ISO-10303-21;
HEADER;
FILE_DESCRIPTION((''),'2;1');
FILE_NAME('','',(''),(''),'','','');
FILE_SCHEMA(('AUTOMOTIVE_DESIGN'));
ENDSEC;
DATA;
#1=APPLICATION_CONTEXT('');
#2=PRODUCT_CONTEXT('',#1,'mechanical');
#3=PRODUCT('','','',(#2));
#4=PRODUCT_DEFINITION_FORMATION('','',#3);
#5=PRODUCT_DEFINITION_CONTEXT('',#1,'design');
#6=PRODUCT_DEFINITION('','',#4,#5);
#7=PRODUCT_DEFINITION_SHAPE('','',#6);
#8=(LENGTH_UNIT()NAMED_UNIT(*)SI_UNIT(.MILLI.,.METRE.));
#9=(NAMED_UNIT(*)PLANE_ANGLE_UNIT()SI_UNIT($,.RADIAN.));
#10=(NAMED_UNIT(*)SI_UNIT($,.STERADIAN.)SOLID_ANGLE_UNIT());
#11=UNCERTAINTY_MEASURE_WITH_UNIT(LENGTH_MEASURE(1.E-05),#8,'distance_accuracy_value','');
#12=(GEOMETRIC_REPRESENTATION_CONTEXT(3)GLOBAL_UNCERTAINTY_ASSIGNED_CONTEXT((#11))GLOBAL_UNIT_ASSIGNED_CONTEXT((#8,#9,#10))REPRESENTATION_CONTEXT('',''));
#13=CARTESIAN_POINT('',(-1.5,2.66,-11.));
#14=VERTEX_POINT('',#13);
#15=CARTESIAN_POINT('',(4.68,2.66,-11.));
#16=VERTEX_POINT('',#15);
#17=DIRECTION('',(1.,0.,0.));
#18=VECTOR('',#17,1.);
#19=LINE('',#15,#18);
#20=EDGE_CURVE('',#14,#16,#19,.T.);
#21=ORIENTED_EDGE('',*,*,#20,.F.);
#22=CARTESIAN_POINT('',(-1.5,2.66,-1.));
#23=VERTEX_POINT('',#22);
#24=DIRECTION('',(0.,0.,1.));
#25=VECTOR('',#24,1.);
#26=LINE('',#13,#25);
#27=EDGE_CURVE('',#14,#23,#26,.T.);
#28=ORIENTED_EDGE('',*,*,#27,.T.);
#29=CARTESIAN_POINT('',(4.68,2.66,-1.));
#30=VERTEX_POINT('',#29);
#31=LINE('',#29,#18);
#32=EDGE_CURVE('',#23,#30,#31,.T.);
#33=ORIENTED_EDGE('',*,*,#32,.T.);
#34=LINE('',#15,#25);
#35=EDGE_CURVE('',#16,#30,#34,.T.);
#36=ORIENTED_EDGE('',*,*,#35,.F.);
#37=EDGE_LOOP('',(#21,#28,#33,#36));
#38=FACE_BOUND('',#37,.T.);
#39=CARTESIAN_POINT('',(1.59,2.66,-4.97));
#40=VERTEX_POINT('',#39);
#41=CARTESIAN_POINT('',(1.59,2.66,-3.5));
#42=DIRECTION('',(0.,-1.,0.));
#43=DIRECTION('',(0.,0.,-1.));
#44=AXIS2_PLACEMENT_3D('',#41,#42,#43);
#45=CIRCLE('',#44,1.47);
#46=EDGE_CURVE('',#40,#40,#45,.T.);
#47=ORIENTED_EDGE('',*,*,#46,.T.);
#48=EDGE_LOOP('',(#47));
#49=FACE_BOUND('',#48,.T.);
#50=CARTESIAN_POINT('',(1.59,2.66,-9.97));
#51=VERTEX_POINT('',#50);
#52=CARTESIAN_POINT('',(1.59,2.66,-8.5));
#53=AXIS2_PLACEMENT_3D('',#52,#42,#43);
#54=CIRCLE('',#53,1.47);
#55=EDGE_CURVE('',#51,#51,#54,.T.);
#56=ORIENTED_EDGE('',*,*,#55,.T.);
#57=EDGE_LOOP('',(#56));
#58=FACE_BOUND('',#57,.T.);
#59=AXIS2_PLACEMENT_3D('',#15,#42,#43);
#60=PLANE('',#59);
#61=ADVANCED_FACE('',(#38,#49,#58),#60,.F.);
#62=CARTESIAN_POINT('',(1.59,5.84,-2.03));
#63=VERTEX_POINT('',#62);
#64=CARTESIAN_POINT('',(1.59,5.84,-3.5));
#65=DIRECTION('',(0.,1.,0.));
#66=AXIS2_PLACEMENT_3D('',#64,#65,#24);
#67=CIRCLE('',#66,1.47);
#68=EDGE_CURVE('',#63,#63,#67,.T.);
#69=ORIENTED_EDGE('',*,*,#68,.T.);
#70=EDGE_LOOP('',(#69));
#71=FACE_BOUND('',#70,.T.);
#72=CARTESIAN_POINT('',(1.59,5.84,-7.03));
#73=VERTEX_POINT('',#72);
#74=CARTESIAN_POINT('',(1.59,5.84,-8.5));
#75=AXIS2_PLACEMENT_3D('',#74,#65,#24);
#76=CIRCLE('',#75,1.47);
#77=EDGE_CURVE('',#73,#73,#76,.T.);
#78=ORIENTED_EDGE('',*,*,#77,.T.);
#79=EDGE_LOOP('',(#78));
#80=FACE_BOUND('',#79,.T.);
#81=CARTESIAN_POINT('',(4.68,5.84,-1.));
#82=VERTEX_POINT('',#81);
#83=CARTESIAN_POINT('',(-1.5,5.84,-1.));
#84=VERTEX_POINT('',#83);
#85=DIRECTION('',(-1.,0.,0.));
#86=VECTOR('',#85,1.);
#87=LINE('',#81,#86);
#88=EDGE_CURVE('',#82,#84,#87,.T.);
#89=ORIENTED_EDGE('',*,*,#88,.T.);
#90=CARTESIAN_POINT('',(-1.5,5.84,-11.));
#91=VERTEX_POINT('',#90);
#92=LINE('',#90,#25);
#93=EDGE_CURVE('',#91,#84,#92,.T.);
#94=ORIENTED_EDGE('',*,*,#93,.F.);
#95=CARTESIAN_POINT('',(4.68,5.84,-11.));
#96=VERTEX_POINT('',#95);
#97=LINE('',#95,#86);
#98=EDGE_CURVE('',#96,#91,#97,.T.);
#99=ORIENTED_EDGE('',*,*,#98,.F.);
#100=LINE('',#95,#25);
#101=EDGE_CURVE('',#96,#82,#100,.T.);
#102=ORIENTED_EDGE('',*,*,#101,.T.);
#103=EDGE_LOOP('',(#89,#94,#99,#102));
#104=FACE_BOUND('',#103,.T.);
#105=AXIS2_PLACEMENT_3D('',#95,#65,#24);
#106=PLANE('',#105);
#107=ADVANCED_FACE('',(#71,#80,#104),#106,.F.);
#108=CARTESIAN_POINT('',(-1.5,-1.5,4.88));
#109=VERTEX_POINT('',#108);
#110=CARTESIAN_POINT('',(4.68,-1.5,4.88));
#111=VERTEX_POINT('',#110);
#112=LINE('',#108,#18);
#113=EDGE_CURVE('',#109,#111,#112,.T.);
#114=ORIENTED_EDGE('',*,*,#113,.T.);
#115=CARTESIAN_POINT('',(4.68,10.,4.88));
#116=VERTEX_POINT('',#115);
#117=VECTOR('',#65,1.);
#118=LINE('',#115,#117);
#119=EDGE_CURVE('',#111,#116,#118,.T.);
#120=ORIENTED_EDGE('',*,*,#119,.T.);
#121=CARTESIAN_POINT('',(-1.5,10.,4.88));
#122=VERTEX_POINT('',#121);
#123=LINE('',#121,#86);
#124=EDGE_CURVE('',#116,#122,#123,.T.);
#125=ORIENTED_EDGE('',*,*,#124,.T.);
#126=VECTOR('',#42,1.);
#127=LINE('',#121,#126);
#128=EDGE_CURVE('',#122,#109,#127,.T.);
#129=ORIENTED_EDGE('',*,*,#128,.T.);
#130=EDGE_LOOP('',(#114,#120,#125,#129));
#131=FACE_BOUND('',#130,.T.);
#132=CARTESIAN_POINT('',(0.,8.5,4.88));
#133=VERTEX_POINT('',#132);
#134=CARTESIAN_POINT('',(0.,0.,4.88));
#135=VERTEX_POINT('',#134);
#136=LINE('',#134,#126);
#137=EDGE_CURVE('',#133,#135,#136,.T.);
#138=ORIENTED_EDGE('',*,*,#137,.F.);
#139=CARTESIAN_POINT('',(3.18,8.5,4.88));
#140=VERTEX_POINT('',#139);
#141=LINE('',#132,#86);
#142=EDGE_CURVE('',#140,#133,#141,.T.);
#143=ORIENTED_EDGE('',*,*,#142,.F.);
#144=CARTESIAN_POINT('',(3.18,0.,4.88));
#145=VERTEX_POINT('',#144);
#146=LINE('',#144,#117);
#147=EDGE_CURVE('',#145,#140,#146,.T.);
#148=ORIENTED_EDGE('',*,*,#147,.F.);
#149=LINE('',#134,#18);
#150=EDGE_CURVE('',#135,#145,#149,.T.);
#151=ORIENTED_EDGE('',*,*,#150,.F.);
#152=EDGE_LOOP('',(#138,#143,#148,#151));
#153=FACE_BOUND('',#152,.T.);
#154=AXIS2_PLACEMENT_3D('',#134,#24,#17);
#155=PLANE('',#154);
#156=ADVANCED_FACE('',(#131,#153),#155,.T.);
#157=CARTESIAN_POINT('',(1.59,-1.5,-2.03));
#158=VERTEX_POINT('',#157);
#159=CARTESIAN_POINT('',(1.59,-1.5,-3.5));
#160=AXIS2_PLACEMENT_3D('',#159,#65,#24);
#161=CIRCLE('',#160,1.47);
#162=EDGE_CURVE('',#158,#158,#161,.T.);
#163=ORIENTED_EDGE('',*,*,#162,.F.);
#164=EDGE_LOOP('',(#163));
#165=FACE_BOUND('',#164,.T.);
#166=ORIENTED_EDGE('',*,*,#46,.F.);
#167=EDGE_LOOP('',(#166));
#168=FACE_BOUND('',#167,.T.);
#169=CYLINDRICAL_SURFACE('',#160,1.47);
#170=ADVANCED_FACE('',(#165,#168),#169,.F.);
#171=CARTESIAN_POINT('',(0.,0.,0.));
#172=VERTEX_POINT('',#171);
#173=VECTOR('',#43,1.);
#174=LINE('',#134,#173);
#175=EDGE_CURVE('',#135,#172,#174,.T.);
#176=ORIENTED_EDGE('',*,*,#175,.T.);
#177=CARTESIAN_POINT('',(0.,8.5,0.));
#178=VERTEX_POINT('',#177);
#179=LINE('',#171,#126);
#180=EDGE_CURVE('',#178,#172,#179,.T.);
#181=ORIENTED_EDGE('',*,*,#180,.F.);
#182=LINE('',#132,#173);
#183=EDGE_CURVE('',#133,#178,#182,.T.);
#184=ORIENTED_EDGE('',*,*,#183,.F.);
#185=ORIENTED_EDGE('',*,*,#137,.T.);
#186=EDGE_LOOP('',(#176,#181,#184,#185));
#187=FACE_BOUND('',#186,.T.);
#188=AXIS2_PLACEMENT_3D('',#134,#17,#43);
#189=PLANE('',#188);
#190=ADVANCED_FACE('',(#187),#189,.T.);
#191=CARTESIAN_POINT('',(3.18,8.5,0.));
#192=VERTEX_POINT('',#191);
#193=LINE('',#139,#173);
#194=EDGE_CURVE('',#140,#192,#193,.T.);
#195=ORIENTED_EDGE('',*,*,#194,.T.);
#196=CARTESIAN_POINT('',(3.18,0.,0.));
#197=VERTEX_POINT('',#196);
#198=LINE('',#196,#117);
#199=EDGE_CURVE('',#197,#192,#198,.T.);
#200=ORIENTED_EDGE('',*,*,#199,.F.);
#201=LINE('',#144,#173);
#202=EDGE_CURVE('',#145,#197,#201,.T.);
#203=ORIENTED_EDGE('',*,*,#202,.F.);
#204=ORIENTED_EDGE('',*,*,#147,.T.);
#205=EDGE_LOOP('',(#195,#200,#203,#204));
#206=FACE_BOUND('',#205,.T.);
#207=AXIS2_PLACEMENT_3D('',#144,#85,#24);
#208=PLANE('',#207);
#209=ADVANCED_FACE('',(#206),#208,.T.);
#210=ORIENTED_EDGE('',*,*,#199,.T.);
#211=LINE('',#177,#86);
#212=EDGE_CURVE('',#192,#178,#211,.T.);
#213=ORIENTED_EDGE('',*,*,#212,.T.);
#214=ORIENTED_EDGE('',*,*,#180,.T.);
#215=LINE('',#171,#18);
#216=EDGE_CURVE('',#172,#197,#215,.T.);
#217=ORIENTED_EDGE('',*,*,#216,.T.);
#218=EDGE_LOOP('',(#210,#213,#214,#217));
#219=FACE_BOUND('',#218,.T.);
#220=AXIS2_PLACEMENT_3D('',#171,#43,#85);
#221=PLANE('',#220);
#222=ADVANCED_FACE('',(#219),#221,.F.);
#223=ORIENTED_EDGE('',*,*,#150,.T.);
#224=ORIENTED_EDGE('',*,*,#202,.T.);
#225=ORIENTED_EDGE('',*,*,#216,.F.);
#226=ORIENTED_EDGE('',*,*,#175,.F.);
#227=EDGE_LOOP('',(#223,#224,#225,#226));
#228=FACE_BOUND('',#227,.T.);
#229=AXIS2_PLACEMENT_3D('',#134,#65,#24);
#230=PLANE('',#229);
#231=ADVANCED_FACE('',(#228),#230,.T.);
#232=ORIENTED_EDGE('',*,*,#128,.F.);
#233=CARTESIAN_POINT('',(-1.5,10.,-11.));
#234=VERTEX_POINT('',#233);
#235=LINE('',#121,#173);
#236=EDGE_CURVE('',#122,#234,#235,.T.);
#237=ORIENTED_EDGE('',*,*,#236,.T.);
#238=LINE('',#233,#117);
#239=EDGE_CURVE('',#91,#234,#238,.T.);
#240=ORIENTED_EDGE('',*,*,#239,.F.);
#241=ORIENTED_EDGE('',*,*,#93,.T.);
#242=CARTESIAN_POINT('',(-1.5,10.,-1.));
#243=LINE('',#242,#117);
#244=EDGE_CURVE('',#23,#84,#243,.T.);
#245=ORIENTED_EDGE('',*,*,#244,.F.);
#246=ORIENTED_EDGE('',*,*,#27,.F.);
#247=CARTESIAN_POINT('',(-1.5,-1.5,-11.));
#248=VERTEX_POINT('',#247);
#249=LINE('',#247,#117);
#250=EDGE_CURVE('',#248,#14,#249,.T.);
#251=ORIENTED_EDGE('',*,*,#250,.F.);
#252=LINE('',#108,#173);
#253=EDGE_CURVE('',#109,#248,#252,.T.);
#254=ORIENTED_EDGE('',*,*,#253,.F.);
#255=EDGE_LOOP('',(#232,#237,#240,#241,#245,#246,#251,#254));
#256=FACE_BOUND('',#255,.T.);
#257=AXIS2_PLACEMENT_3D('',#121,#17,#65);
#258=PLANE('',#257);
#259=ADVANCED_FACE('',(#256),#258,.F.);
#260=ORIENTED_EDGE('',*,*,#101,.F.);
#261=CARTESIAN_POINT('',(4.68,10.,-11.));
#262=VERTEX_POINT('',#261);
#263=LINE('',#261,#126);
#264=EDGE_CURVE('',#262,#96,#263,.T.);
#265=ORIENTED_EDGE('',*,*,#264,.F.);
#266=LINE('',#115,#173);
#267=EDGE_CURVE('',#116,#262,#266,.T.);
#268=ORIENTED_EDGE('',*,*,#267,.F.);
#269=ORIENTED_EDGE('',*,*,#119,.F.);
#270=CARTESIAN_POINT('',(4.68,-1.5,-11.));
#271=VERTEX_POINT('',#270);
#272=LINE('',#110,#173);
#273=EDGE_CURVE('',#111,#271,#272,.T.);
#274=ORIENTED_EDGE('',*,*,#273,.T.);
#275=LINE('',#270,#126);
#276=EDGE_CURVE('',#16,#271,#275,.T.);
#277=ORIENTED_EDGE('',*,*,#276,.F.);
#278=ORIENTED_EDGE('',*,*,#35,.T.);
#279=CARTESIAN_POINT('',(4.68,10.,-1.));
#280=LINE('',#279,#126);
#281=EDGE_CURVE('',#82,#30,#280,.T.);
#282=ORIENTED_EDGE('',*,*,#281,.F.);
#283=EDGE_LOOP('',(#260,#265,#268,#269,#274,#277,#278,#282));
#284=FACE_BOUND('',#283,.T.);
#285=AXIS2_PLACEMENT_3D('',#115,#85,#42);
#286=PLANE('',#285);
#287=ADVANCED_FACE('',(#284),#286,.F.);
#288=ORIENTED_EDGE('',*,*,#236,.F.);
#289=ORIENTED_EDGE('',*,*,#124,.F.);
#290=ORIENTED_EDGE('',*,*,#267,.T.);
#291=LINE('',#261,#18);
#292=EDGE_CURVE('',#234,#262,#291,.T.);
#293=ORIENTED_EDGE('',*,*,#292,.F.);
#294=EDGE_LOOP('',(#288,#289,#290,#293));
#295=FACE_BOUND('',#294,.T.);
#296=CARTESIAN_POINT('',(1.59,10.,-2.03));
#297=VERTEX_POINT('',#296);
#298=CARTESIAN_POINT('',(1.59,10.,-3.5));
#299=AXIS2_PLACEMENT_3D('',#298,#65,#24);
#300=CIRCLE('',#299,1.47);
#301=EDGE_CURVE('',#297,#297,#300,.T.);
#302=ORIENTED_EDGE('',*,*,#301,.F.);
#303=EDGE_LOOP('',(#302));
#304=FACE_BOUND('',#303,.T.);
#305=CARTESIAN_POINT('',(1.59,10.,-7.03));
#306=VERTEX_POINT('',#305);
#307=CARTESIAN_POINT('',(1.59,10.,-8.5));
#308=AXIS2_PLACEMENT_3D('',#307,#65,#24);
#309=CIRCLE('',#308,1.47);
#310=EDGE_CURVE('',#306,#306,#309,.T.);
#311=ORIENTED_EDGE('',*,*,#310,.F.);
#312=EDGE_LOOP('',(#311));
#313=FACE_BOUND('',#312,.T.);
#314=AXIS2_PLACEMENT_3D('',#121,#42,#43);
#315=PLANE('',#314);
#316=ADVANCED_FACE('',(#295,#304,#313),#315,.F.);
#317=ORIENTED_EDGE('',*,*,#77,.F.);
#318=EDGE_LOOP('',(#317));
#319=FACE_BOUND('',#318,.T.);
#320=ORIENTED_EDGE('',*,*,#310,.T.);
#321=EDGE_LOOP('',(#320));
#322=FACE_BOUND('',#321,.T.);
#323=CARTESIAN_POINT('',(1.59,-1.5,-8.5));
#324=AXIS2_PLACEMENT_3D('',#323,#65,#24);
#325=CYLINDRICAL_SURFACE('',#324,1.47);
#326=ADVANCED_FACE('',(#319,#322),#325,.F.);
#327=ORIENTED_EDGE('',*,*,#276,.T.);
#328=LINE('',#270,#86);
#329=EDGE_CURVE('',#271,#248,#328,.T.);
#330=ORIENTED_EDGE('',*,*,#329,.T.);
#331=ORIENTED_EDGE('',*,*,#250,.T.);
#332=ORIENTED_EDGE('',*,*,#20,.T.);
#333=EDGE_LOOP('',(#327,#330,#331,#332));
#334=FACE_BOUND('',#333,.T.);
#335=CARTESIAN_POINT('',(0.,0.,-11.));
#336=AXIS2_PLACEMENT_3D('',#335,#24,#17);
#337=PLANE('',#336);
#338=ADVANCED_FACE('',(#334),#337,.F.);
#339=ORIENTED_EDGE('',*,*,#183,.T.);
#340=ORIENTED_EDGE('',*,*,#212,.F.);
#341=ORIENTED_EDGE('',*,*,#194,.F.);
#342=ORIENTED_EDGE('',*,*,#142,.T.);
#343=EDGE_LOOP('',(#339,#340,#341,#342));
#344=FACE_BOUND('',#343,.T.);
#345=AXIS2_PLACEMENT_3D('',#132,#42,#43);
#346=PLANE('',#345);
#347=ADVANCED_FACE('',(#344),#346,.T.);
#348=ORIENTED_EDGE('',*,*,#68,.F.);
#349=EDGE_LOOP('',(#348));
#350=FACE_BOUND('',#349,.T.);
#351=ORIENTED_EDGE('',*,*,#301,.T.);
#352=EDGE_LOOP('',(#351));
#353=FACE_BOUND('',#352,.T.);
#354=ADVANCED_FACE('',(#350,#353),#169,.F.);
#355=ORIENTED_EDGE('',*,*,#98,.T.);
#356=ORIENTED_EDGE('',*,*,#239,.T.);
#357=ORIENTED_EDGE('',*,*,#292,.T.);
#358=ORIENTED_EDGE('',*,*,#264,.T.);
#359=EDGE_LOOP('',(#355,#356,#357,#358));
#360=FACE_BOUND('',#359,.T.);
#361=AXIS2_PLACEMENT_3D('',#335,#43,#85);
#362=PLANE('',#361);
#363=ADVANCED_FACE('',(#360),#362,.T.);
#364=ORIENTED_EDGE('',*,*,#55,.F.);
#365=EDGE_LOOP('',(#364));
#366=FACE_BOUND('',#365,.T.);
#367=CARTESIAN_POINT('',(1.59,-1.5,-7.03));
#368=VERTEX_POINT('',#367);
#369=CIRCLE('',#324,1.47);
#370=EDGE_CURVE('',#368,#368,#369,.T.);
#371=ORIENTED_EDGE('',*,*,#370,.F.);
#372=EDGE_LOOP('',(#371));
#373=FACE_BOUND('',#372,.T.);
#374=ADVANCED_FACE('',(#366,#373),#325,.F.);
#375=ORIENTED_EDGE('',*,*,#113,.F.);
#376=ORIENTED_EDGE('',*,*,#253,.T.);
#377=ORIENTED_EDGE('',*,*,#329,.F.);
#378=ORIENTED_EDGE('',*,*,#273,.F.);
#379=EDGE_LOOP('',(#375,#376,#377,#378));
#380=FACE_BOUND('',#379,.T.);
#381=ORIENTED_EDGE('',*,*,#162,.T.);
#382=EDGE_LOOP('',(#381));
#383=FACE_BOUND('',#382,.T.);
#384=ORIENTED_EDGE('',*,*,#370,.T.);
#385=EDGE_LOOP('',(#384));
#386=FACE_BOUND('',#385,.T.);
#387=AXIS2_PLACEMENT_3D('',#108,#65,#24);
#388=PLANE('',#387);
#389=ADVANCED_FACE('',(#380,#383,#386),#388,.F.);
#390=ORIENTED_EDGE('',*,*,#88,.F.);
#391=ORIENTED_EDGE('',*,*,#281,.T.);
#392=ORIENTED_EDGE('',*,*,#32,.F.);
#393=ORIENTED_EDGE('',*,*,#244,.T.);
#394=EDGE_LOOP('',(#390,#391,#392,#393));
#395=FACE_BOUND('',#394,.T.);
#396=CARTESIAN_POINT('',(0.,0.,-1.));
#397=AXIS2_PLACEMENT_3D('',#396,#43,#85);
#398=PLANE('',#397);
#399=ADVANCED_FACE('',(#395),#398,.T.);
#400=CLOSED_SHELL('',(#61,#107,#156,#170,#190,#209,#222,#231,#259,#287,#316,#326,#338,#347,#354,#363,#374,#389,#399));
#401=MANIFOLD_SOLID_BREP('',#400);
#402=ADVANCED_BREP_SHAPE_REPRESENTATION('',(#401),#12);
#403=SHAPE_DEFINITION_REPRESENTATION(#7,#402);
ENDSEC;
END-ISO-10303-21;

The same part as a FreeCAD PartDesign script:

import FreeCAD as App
import Part
import Sketcher

V = App.Vector

doc = App.newDocument("Part")
body = doc.addObject("PartDesign::Body", "Body")

# Sketch on XY plane
sketch1 = doc.addObject("Sketcher::SketchObject", "Sketch")
body.addObject(sketch1)
sketch1.AttachmentSupport = (doc.XY_Plane, [""])
sketch1.MapMode = "FlatFace"
sketch1.addGeometry([
    Part.LineSegment(V(-1.5, 10, 0), V(-1.5, -1.5, 0)),  # 0
    Part.LineSegment(V(-1.5, -1.5, 0), V(4.7, -1.5, 0)),  # 1
    Part.LineSegment(V(4.7, -1.5, 0), V(4.7, 10, 0)),  # 2
    Part.LineSegment(V(4.7, 10, 0), V(-1.5, 10, 0)),  # 3
    Part.LineSegment(V(3.2, 0, 0), V(0, 0, 0)),  # 4
    Part.LineSegment(V(0, 0, 0), V(0, 8.5, 0)),  # 5
    Part.LineSegment(V(0, 8.5, 0), V(3.2, 8.5, 0)),  # 6
    Part.LineSegment(V(3.2, 8.5, 0), V(3.2, 0, 0)),  # 7
], False)
sketch1.addConstraint([
    Sketcher.Constraint("Coincident", 0, 2, 1, 1),
    Sketcher.Constraint("Coincident", 1, 2, 2, 1),
    Sketcher.Constraint("Coincident", 2, 2, 3, 1),
    Sketcher.Constraint("Coincident", 3, 2, 0, 1),
    Sketcher.Constraint("Coincident", 4, 2, 5, 1),
    Sketcher.Constraint("Coincident", 5, 2, 6, 1),
    Sketcher.Constraint("Coincident", 6, 2, 7, 1),
    Sketcher.Constraint("Coincident", 7, 2, 4, 1),
    Sketcher.Constraint("Vertical", 0),
    Sketcher.Constraint("Horizontal", 1),
    Sketcher.Constraint("Vertical", 2),
    Sketcher.Constraint("Horizontal", 3),
    Sketcher.Constraint("Horizontal", 4),
    Sketcher.Constraint("Vertical", 5),
    Sketcher.Constraint("Horizontal", 6),
    Sketcher.Constraint("Vertical", 7),
    Sketcher.Constraint("Coincident", 4, 2, -1, 1),
    Sketcher.Constraint("DistanceY", 0, 2, 0, 1, 11.5),
    Sketcher.Constraint("DistanceY", 5, 1, 5, 2, 8.5),
    Sketcher.Constraint("DistanceY", -1, 1, 2, 2, 10.0),
    Sketcher.Constraint("DistanceX", 1, 1, 1, 2, 6.18),
    Sketcher.Constraint("DistanceX", 4, 2, 4, 1, 3.18),
    Sketcher.Constraint("DistanceX", 0, 2, -1, 1, 1.5),
])
pad1 = doc.addObject("PartDesign::Pad", "Pad")
body.addObject(pad1)
pad1.Profile = sketch1
pad1.Length = 4.88

# Sketch on XY plane
sketch2 = doc.addObject("Sketcher::SketchObject", "Sketch001")
body.addObject(sketch2)
sketch2.AttachmentSupport = (doc.XY_Plane, [""])
sketch2.MapMode = "FlatFace"
sketch2.addGeometry([
    Part.LineSegment(V(5, 10, 0), V(5, -2, 0)),
    Part.LineSegment(V(5, -2, 0), V(-2, -2, 0)),
    Part.LineSegment(V(-2, -2, 0), V(-2, 10, 0)),
    Part.LineSegment(V(-2, 10, 0), V(5, 10, 0)),
], False)
sketch2.addConstraint([
    Sketcher.Constraint("Coincident", 0, 2, 1, 1),
    Sketcher.Constraint("Coincident", 1, 2, 2, 1),
    Sketcher.Constraint("Coincident", 2, 2, 3, 1),
    Sketcher.Constraint("Coincident", 3, 2, 0, 1),
    Sketcher.Constraint("Vertical", 0),
    Sketcher.Constraint("Horizontal", 1),
    Sketcher.Constraint("Vertical", 2),
    Sketcher.Constraint("Horizontal", 3),
    Sketcher.Constraint("DistanceY", 0, 2, 0, 1, 11.5),
    Sketcher.Constraint("DistanceY", -1, 1, 2, 2, 10.0),
    Sketcher.Constraint("DistanceX", 1, 2, 1, 1, 6.18),
    Sketcher.Constraint("DistanceX", 1, 2, -1, 1, 1.5),
])
pad2 = doc.addObject("PartDesign::Pad", "Pad001")
body.addObject(pad2)
pad2.Profile = sketch2
pad2.Length = 1
pad2.Reversed = True

# Sketch on XY plane
sketch3 = doc.addObject("Sketcher::SketchObject", "Sketch002")
body.addObject(sketch3)
sketch3.AttachmentSupport = (doc.XY_Plane, [""])
sketch3.MapMode = "FlatFace"
sketch3.AttachmentOffset = App.Placement(V(0, 0, -1), App.Rotation())
sketch3.addGeometry([
    Part.LineSegment(V(4.7, 10, 0), V(4.7, 5.8, 0)),  # 0
    Part.LineSegment(V(4.7, 5.8, 0), V(-1.5, 5.8, 0)),  # 1
    Part.LineSegment(V(-1.5, 5.8, 0), V(-1.5, 10, 0)),  # 2
    Part.LineSegment(V(-1.5, 10, 0), V(4.7, 10, 0)),  # 3
    Part.LineSegment(V(4.7, 2.7, 0), V(4.7, -1.5, 0)),  # 4
    Part.LineSegment(V(4.7, -1.5, 0), V(-1.5, -1.5, 0)),  # 5
    Part.LineSegment(V(-1.5, -1.5, 0), V(-1.5, 2.7, 0)),  # 6
    Part.LineSegment(V(-1.5, 2.7, 0), V(4.7, 2.7, 0)),  # 7
], False)
sketch3.addConstraint([
    Sketcher.Constraint("Coincident", 0, 2, 1, 1),
    Sketcher.Constraint("Coincident", 1, 2, 2, 1),
    Sketcher.Constraint("Coincident", 2, 2, 3, 1),
    Sketcher.Constraint("Coincident", 3, 2, 0, 1),
    Sketcher.Constraint("Coincident", 4, 2, 5, 1),
    Sketcher.Constraint("Coincident", 5, 2, 6, 1),
    Sketcher.Constraint("Coincident", 6, 2, 7, 1),
    Sketcher.Constraint("Coincident", 7, 2, 4, 1),
    Sketcher.Constraint("Vertical", 0),
    Sketcher.Constraint("Horizontal", 1),
    Sketcher.Constraint("Vertical", 2),
    Sketcher.Constraint("Horizontal", 3),
    Sketcher.Constraint("Vertical", 4),
    Sketcher.Constraint("Horizontal", 5),
    Sketcher.Constraint("Vertical", 6),
    Sketcher.Constraint("Horizontal", 7),
    Sketcher.Constraint("Vertical", 3, 2, 4, 2),
    Sketcher.Constraint("Vertical", 2, 2, 5, 2),
    Sketcher.Constraint("Equal", 2, 4),
    Sketcher.Constraint("DistanceY", -1, 1, 2, 2, 10.0),
    Sketcher.Constraint("DistanceX", 1, 2, 1, 1, 6.18),
    Sketcher.Constraint("DistanceY", 0, 2, 0, 1, 4.16),
    Sketcher.Constraint("DistanceX", 1, 2, -1, 1, 1.5),
    Sketcher.Constraint("DistanceY", 4, 2, -1, 1, 1.5),
])
pad3 = doc.addObject("PartDesign::Pad", "Pad002")
body.addObject(pad3)
pad3.Profile = sketch3
pad3.Length = 10
pad3.Reversed = True

# Sketch on XZ plane
sketch4 = doc.addObject("Sketcher::SketchObject", "Sketch003")
body.addObject(sketch4)
sketch4.AttachmentSupport = (doc.XZ_Plane, [""])
sketch4.MapMode = "FlatFace"
sketch4.AttachmentOffset = App.Placement(V(0, 0, -10), App.Rotation())
sketch4.addGeometry([
    Part.Circle(V(1.6, -3.5, 0), V(0, 0, 1), 1.5),
    Part.Circle(V(1.6, -8.5, 0), V(0, 0, 1), 1.5),
], False)
sketch4.addConstraint([
    Sketcher.Constraint("Equal", 0, 1),
    Sketcher.Constraint("Vertical", 0, 3, 1, 3),
    Sketcher.Constraint("Diameter", 0, 2.94),
    Sketcher.Constraint("DistanceY", 1, 3, 0, 3, 5.0),
    Sketcher.Constraint("DistanceY", 0, 3, -1, 1, 3.5),
    Sketcher.Constraint("DistanceX", -1, 1, 0, 3, 1.59),
])
pocket1 = doc.addObject("PartDesign::Pocket", "Pocket")
body.addObject(pocket1)
pocket1.Profile = sketch4
pocket1.Type = "ThroughAll"
pocket1.Reversed = True

doc.recompute()
